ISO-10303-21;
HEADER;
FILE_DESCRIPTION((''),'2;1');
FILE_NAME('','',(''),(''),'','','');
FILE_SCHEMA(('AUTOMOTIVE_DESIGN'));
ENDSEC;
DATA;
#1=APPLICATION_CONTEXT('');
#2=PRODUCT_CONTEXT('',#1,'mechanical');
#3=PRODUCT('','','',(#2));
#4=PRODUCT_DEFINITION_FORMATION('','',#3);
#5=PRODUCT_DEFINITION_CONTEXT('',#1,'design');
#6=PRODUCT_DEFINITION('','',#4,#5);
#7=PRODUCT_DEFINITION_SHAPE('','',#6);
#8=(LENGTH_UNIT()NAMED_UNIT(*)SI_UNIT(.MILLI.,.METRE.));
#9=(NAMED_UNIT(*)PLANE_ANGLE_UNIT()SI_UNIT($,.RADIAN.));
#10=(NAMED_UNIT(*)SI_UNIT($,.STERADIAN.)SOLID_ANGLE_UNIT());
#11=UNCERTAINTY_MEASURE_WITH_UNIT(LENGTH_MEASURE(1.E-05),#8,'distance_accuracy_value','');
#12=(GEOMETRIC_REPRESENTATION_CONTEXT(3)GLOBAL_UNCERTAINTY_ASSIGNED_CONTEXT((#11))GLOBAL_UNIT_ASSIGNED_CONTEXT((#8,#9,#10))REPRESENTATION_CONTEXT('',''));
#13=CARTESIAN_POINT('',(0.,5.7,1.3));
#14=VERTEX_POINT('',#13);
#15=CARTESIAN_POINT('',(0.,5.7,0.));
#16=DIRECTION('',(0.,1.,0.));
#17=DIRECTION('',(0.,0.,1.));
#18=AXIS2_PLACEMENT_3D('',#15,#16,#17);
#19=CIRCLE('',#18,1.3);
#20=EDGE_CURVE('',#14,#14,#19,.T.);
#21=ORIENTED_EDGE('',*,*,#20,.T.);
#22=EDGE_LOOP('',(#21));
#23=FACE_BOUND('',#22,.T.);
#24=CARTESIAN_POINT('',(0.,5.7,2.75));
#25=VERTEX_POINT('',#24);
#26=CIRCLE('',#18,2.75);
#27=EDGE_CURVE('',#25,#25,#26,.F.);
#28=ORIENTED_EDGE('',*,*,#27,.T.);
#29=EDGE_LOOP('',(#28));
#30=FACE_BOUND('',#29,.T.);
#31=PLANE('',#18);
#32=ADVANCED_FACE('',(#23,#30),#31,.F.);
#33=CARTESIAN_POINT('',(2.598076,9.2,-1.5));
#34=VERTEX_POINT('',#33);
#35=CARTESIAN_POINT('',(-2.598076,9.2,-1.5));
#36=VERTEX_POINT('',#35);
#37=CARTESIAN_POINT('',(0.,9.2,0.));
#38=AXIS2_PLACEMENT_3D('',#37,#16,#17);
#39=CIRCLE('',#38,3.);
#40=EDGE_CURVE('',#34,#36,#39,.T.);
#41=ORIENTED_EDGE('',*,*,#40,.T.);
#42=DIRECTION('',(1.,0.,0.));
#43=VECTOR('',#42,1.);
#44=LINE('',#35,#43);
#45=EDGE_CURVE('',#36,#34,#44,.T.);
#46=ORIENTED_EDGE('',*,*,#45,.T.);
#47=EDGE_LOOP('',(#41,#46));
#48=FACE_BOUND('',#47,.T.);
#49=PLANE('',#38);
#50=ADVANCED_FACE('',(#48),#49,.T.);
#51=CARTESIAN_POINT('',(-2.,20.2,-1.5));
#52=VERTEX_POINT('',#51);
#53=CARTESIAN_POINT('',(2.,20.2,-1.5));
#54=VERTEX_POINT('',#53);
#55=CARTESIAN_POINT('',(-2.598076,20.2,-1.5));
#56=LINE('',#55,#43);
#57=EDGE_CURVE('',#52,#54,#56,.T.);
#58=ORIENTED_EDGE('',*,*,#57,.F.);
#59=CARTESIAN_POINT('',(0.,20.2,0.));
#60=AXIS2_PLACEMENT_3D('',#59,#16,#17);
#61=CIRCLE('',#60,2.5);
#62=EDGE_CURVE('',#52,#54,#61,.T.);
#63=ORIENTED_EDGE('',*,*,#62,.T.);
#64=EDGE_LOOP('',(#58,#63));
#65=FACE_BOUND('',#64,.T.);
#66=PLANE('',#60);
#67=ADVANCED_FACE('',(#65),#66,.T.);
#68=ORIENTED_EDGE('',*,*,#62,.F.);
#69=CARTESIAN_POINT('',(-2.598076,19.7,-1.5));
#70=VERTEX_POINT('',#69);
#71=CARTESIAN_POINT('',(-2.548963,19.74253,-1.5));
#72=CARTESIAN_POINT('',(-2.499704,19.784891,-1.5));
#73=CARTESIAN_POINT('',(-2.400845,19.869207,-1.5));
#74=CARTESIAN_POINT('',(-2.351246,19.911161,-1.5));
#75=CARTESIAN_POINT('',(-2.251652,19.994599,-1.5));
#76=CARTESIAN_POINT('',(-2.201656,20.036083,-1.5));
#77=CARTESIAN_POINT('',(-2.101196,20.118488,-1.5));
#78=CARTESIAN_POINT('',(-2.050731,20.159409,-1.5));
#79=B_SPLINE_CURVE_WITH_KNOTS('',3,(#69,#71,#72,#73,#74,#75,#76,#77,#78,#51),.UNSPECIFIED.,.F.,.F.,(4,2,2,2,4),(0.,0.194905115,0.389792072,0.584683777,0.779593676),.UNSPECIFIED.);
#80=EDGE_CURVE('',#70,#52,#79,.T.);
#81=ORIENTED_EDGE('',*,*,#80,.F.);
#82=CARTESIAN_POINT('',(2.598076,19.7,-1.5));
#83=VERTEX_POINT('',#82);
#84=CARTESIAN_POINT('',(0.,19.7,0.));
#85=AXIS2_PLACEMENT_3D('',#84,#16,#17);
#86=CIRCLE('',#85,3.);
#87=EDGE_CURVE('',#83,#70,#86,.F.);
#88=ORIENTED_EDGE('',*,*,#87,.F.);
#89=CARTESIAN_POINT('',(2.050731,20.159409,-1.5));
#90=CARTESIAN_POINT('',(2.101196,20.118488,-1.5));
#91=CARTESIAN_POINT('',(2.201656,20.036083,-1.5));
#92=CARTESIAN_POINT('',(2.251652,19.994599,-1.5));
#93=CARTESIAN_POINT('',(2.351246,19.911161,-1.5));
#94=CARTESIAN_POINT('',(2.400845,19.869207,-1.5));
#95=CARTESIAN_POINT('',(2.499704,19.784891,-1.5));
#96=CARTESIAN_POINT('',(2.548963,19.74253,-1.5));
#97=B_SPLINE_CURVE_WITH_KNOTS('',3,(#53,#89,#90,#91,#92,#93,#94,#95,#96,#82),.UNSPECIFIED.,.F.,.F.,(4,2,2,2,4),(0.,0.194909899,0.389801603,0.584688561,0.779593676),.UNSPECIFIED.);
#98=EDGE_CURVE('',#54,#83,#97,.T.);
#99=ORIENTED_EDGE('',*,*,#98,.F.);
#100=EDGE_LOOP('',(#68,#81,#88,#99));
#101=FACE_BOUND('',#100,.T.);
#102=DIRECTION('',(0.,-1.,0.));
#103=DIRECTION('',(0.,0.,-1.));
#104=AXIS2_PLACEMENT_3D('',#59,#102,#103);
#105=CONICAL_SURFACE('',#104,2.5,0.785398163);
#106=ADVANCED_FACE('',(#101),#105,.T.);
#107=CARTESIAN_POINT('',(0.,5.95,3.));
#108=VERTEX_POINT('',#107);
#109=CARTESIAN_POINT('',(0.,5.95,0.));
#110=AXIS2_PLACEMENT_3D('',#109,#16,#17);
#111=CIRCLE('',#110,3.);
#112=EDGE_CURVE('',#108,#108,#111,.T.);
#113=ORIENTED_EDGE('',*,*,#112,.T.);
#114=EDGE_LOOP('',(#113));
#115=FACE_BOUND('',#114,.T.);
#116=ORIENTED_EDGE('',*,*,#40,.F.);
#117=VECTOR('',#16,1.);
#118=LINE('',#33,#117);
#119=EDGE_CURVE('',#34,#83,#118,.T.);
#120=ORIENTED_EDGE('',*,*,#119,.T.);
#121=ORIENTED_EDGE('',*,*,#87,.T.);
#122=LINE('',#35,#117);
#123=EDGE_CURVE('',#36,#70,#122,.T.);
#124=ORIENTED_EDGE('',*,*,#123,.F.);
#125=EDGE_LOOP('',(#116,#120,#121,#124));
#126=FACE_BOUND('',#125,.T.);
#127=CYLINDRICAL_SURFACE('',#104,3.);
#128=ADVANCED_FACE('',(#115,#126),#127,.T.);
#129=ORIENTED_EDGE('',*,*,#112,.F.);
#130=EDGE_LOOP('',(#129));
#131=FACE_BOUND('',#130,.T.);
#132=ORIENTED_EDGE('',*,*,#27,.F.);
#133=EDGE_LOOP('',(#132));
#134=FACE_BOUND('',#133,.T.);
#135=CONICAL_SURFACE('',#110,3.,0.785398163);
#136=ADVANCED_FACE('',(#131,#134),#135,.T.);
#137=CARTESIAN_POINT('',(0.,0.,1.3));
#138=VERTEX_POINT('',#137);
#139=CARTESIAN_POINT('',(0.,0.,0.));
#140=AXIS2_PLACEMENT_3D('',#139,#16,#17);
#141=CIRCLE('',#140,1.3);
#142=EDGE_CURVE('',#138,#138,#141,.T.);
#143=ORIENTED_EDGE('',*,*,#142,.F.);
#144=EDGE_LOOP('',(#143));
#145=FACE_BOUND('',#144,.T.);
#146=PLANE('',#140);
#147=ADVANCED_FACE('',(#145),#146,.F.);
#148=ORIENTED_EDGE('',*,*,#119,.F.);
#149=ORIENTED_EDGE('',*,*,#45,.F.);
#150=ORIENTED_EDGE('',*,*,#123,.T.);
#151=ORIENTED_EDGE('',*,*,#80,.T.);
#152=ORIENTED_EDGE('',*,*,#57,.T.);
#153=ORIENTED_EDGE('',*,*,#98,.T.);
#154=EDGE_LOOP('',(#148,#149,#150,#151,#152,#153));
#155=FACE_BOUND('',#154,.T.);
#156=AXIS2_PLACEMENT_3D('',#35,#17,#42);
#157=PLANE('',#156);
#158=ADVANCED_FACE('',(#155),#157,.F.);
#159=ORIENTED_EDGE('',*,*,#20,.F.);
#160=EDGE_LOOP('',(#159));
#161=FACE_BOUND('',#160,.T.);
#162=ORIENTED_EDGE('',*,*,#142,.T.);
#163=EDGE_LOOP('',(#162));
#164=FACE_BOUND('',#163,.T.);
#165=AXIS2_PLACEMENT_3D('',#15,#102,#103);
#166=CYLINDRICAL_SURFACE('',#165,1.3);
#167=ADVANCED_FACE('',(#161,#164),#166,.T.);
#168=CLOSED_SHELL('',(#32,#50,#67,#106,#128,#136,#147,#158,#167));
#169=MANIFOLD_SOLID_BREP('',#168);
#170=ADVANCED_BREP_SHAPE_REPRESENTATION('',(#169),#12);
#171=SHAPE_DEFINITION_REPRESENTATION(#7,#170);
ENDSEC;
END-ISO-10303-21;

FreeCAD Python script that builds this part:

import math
import FreeCAD as App
import Part
import Sketcher

V = App.Vector
Q = App.Units.Quantity


def edges_at(feature, points):
    """Names of the edges that pass closest to the given points."""
    edges = feature.Shape.Edges
    near = lambda p: min(range(len(edges)), key=lambda i: edges[i].distToShape(Part.Vertex(*p))[0])
    return sorted({f"Edge{near(p) + 1}" for p in points})

doc = App.newDocument("Part")
body = doc.addObject("PartDesign::Body", "Body")

sketch1 = body.newObject("Sketcher::SketchObject", "Sketch")
sketch1.AttachmentSupport = (doc.getObject("XZ_Plane"), [""])
sketch1.MapMode = "FlatFace"
sketch1.addGeometry(Part.Circle(V(0, 0, 0), V(0, 0, 1), 1.3), False)
sketch1.addConstraint(Sketcher.Constraint("Coincident", 0, 3, -1, 1))
sketch1.addConstraint(Sketcher.Constraint("Diameter", 0, Q("2.6 mm")))
pad1 = body.newObject("PartDesign::Pad", "Pad")
pad1.Profile = sketch1
pad1.Length = 5.7
pad1.Reversed = True

sketch2 = body.newObject("Sketcher::SketchObject", "Sketch001")
sketch2.AttachmentSupport = (doc.getObject("XZ_Plane"), [""])
sketch2.MapMode = "FlatFace"
sketch2.AttachmentOffset = App.Placement(V(0, 0, -5.7), App.Rotation())
sketch2.addGeometry(Part.Circle(V(0, 0, 0), V(0, 0, 1), 3), False)
sketch2.addConstraint(Sketcher.Constraint("Coincident", 0, 3, -1, 1))
sketch2.addConstraint(Sketcher.Constraint("Diameter", 0, Q("6 mm")))
pad2 = body.newObject("PartDesign::Pad", "Pad001")
pad2.Profile = sketch2
pad2.Length = 14.5
pad2.Reversed = True
doc.recompute()

chamfer = body.newObject("PartDesign::Chamfer", "Chamfer")
chamfer.Base = (pad2, edges_at(pad2, [(-3, 5.7, 0)]))
chamfer.Size = 0.25

sketch3 = body.newObject("Sketcher::SketchObject", "Sketch002")
sketch3.AttachmentSupport = (doc.getObject("XZ_Plane"), [""])
sketch3.MapMode = "FlatFace"
sketch3.AttachmentOffset = App.Placement(V(0, 0, -20.2), App.Rotation())
sketch3.addGeometry(Part.LineSegment(V(-2.6, -1.5, 0), V(2.6, -1.5, 0)), False)
sketch3.addGeometry(Part.ArcOfCircle(Part.Circle(V(0, 0, 0), V(0, 0, 1), 3), math.radians(-150), math.radians(-30)), False)
sketch3.addConstraint(Sketcher.Constraint("Coincident", 0, 1, 1, 1))
sketch3.addConstraint(Sketcher.Constraint("Coincident", 1, 2, 0, 2))
sketch3.addConstraint(Sketcher.Constraint("Horizontal", 0))
sketch3.addConstraint(Sketcher.Constraint("Coincident", 1, 3, -1, 1))
sketch3.addConstraint(Sketcher.Constraint("Radius", 1, Q("3 mm")))
sketch3.addConstraint(Sketcher.Constraint("DistanceY", 0, 1, -1, 1, Q("1.5 mm")))
pocket1 = body.newObject("PartDesign::Pocket", "Pocket")
pocket1.Profile = sketch3
pocket1.Length = 11
pocket1.Reversed = True
doc.recompute()

chamfer2 = body.newObject("PartDesign::Chamfer", "Chamfer001")
chamfer2.Base = (pocket1, edges_at(pocket1, [(-0.776, 20.2, 2.898)]))
chamfer2.Size = 0.5

doc.recompute()
